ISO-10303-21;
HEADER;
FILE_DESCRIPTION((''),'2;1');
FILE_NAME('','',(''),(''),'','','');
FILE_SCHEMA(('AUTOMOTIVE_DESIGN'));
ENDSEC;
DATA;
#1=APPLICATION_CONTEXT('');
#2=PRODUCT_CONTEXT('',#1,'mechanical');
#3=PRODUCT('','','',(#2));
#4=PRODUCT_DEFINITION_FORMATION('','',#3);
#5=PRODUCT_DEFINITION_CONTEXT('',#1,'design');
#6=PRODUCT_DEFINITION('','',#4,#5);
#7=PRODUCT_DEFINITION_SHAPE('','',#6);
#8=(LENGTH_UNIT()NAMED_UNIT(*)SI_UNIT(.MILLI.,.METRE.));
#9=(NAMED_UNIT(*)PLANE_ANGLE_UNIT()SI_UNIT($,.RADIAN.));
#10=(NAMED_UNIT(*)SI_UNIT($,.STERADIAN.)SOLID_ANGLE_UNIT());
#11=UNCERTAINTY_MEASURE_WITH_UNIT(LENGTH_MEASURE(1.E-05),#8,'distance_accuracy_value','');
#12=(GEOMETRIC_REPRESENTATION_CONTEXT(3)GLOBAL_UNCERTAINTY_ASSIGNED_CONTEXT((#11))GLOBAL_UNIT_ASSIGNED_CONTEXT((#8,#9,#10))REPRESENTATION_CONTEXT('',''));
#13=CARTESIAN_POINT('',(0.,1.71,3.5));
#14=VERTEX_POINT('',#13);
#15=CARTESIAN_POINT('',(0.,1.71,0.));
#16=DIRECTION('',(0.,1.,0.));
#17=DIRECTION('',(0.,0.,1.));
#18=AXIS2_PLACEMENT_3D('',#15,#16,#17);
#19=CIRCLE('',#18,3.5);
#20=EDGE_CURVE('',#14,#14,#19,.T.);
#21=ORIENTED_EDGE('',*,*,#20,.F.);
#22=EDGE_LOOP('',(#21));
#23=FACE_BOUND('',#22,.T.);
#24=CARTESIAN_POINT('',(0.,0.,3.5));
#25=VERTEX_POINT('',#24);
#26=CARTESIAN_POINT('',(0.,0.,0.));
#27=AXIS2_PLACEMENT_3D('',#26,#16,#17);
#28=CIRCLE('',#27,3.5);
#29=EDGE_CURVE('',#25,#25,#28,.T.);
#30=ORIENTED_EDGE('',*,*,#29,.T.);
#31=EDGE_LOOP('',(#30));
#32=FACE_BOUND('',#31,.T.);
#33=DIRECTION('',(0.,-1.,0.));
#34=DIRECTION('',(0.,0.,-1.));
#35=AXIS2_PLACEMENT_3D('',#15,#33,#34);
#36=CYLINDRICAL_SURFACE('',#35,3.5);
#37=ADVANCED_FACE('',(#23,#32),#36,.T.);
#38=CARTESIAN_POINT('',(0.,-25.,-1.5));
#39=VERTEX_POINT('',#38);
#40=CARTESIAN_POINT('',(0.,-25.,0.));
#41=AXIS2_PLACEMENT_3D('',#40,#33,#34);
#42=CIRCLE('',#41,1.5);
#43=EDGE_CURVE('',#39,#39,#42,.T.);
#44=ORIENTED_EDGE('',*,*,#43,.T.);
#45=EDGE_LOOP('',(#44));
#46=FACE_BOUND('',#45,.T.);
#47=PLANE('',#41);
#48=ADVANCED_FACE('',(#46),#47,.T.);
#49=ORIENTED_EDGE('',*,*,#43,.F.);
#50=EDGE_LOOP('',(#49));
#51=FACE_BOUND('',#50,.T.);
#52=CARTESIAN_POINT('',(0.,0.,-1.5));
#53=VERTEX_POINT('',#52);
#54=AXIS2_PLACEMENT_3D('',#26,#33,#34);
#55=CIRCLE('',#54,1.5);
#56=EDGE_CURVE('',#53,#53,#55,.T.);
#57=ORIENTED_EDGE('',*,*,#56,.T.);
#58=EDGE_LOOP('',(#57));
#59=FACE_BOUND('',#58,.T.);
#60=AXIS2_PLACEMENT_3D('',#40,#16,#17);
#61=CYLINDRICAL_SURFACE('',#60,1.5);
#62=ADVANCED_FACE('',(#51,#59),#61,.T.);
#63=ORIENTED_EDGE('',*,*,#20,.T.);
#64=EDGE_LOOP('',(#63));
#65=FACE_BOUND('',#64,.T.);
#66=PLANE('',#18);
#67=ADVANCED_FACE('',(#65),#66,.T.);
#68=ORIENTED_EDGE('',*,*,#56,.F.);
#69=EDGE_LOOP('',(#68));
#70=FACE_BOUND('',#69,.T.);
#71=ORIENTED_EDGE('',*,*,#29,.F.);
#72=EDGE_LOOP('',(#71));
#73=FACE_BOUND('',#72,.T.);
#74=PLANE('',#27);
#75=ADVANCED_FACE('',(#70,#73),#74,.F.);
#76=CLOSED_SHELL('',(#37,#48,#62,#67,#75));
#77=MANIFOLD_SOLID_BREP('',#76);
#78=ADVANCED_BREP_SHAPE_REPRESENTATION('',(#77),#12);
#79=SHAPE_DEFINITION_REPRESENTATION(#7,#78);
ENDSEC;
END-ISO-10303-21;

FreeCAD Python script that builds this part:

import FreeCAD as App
import Part
import Sketcher
from FreeCAD import Vector
Q = App.Units.Quantity

doc = App.newDocument("Part")
body = doc.addObject("PartDesign::Body", "Body")

sketch1 = body.newObject("Sketcher::SketchObject", "Sketch")
sketch1.AttachmentSupport = (doc.getObject("XZ_Plane"), [""])
sketch1.MapMode = "FlatFace"
sketch1.addGeometry(Part.Circle(Vector(0, 0, 0), Vector(0, 0, 1), 3.5), False)
sketch1.addConstraint(Sketcher.Constraint("Coincident", 0, 3, -1, 1))
sketch1.addConstraint(Sketcher.Constraint("Diameter", 0, Q("7 mm")))
pad1 = body.newObject("PartDesign::Pad", "Pad")
pad1.Profile = sketch1
pad1.Length = 1.71
pad1.Reversed = True

sketch2 = body.newObject("Sketcher::SketchObject", "Sketch001")
sketch2.AttachmentSupport = (doc.getObject("XZ_Plane"), [""])
sketch2.MapMode = "FlatFace"
sketch2.addGeometry(Part.Circle(Vector(0, 0, 0), Vector(0, 0, 1), 1.5), False)
sketch2.addConstraint(Sketcher.Constraint("Coincident", 0, 3, -1, 1))
sketch2.addConstraint(Sketcher.Constraint("Diameter", 0, Q("3 mm")))
pad2 = body.newObject("PartDesign::Pad", "Pad001")
pad2.Profile = sketch2
pad2.Length = 25

doc.recompute()
